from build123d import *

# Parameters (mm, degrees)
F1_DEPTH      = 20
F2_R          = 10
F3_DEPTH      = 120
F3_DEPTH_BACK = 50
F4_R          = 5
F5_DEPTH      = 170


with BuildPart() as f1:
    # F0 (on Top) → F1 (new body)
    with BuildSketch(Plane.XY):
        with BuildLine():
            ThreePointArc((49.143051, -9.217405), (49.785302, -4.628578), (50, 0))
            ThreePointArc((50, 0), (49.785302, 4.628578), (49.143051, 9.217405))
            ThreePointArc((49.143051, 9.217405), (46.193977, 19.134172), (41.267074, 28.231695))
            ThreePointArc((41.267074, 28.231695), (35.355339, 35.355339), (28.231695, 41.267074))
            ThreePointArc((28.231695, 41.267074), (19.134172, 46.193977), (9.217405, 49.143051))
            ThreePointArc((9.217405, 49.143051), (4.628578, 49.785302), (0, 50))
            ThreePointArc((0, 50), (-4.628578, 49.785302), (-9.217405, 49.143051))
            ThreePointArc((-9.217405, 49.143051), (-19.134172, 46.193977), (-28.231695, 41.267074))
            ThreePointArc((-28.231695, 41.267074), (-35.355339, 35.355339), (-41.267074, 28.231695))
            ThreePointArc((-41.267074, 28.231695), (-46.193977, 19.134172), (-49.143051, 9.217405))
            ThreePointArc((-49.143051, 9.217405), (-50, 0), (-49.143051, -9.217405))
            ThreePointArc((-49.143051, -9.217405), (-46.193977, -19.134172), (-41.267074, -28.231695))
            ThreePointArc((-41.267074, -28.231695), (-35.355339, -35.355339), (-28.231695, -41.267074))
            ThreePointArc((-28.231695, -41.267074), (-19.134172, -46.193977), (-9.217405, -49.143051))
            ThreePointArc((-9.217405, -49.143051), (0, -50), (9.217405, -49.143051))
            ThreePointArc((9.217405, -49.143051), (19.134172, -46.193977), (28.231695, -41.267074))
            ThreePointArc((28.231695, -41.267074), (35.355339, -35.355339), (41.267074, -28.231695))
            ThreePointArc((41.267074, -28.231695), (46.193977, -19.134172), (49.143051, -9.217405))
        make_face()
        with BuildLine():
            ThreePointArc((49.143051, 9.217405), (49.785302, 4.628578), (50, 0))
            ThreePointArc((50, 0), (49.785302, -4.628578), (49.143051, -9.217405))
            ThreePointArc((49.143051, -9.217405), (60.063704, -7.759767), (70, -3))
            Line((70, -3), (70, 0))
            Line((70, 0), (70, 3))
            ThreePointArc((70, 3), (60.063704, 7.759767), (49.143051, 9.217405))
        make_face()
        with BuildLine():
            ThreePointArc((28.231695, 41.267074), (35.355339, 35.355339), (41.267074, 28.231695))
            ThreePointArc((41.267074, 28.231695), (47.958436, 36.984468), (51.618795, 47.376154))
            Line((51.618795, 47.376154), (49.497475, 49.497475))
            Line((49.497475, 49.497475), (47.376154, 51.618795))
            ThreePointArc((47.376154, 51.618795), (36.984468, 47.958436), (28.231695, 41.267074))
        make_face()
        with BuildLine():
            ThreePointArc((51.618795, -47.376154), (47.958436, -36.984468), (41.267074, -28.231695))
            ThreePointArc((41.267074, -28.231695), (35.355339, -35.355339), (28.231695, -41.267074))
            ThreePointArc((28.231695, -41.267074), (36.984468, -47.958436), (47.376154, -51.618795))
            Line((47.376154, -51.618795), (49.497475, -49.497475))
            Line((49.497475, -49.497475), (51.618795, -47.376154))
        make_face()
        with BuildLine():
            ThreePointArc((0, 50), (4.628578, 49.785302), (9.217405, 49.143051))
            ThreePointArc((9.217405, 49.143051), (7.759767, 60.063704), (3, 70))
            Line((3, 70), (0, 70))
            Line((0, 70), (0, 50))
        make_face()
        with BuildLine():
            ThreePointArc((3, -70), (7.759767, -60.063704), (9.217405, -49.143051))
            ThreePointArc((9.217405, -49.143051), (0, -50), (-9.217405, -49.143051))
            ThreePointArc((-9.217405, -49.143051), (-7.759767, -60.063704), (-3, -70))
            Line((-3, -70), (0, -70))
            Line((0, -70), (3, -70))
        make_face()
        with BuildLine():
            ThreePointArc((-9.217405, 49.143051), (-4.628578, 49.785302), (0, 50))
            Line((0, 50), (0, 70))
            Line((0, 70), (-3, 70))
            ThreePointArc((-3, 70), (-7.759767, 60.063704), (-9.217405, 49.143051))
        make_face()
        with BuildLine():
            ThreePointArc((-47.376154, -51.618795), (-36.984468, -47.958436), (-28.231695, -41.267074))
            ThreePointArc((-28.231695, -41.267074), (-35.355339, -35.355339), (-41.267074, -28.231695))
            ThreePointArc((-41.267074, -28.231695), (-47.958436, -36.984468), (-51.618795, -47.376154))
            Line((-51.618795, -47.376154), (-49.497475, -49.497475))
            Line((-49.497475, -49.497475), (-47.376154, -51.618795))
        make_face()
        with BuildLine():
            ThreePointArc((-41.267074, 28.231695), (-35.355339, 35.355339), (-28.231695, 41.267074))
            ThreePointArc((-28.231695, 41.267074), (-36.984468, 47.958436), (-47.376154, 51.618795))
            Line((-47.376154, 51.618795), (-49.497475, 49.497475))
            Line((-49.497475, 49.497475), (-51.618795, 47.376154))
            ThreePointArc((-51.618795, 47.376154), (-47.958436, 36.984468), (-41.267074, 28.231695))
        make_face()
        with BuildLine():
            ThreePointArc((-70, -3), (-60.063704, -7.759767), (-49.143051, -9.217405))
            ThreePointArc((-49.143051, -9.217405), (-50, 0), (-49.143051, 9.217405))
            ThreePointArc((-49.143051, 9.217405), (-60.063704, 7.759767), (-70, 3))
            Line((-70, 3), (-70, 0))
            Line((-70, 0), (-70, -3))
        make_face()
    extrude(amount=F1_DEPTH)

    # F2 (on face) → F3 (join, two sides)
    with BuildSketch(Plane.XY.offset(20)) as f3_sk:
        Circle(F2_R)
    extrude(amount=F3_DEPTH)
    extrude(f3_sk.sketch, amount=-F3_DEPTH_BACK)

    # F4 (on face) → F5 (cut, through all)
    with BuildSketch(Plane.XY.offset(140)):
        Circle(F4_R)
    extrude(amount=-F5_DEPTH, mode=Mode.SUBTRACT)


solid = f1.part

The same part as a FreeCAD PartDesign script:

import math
import FreeCAD as App
import Part
import Sketcher

V = App.Vector
Q = App.Units.Quantity

doc = App.newDocument("Part")
body = doc.addObject("PartDesign::Body", "Body")

sketch1 = body.newObject("Sketcher::SketchObject", "Sketch")
sketch1.AttachmentSupport = (doc.getObject("XY_Plane"), [""])
sketch1.MapMode = "FlatFace"
sketch1.addGeometry([
    Part.ArcOfCircle(Part.Circle(V(0.000018, 0.000007, 0), V(0, 0, 1), 49.999981), math.radians(10.623123), math.radians(34.376878)),
    Part.ArcOfCircle(Part.Circle(V(16.970569, 53.740113, 0), V(0, 0, 1), 35.227824), math.radians(-46.393914), math.radians(-10.40771)),
    Part.LineSegment(V(51.618795, 47.376154, 0), V(49.497475, 49.497475, 0)),
    Part.LineSegment(V(49.497475, 49.497475, 0), V(47.376154, 51.618795, 0)),
    Part.ArcOfCircle(Part.Circle(V(53.740113, 16.970569, 0), V(0, 0, 1), 35.227824), math.radians(100.40771), math.radians(136.393914)),
    Part.ArcOfCircle(Part.Circle(V(0.000007, 0.000018, 0), V(0, 0, 1), 49.999981), math.radians(55.623122), math.radians(79.376877)),
    Part.ArcOfCircle(Part.Circle(V(-25.999995, 50.000002, 0), V(0, 0, 1), 35.227825), math.radians(-1.393913), math.radians(34.59229)),
    Part.LineSegment(V(3, 70, 0), V(-3, 70, 0)),
    Part.ArcOfCircle(Part.Circle(V(25.999995, 50.000002, 0), V(0, 0, 1), 35.227825), math.radians(145.40771), math.radians(181.393913)),
    Part.ArcOfCircle(Part.Circle(V(-0.000007, 0.000018, 0), V(0, 0, 1), 49.999981), math.radians(100.623123), math.radians(124.376878)),
    Part.ArcOfCircle(Part.Circle(V(-53.740113, 16.970569, 0), V(0, 0, 1), 35.227824), math.radians(43.606086), math.radians(79.59229)),
    Part.LineSegment(V(-47.376154, 51.618795, 0), V(-49.497475, 49.497475, 0)),
    Part.LineSegment(V(-49.497475, 49.497475, 0), V(-51.618795, 47.376154, 0)),
    Part.ArcOfCircle(Part.Circle(V(-16.970569, 53.740113, 0), V(0, 0, 1), 35.227824), math.radians(-169.59229), math.radians(-133.606086)),
    Part.ArcOfCircle(Part.Circle(V(-0.000018, 0.000007, 0), V(0, 0, 1), 49.999981), math.radians(145.623122), math.radians(169.376877)),
    Part.ArcOfCircle(Part.Circle(V(-50.000002, -25.999995, 0), V(0, 0, 1), 35.227825), math.radians(88.606087), math.radians(124.59229)),
    Part.LineSegment(V(-70, 3, 0), V(-70, -3, 0)),
    Part.ArcOfCircle(Part.Circle(V(-50.000002, 25.999995, 0), V(0, 0, 1), 35.227825), math.radians(-124.59229), math.radians(-88.606087)),
    Part.ArcOfCircle(Part.Circle(V(-0.000018, -0.000007, 0), V(0, 0, 1), 49.999981), math.radians(-169.376877), math.radians(-145.623122)),
    Part.ArcOfCircle(Part.Circle(V(-16.970569, -53.740113, 0), V(0, 0, 1), 35.227824), math.radians(133.606086), math.radians(169.59229)),
    Part.LineSegment(V(-51.618795, -47.376154, 0), V(-49.497475, -49.497475, 0)),
    Part.LineSegment(V(-49.497475, -49.497475, 0), V(-47.376154, -51.618795, 0)),
    Part.ArcOfCircle(Part.Circle(V(-53.740113, -16.970569, 0), V(0, 0, 1), 35.227824), math.radians(-79.59229), math.radians(-43.606086)),
    Part.ArcOfCircle(Part.Circle(V(-0.000007, -0.000018, 0), V(0, 0, 1), 49.999981), math.radians(-124.376878), math.radians(-100.623123)),
    Part.ArcOfCircle(Part.Circle(V(25.999995, -50.000002, 0), V(0, 0, 1), 35.227825), math.radians(178.606087), math.radians(214.59229)),
    Part.LineSegment(V(-3, -70, 0), V(3, -70, 0)),
    Part.ArcOfCircle(Part.Circle(V(-25.999995, -50.000002, 0), V(0, 0, 1), 35.227825), math.radians(-34.59229), math.radians(1.393913)),
    Part.ArcOfCircle(Part.Circle(V(0.000007, -0.000018, 0), V(0, 0, 1), 49.999981), math.radians(-79.376877), math.radians(-55.623122)),
    Part.ArcOfCircle(Part.Circle(V(53.740113, -16.970569, 0), V(0, 0, 1), 35.227824), math.radians(-136.393914), math.radians(-100.40771)),
    Part.LineSegment(V(47.376154, -51.618795, 0), V(49.497475, -49.497475, 0)),
    Part.LineSegment(V(49.497475, -49.497475, 0), V(51.618795, -47.376154, 0)),
    Part.ArcOfCircle(Part.Circle(V(16.970569, -53.740113, 0), V(0, 0, 1), 35.227824), math.radians(10.40771), math.radians(46.393914)),
    Part.ArcOfCircle(Part.Circle(V(0.000018, -0.000007, 0), V(0, 0, 1), 49.999981), math.radians(-34.376878), math.radians(-10.623123)),
    Part.ArcOfCircle(Part.Circle(V(50.000002, 25.999995, 0), V(0, 0, 1), 35.227825), math.radians(-91.393913), math.radians(-55.40771)),
    Part.LineSegment(V(70, -3, 0), V(70, 3, 0)),
    Part.ArcOfCircle(Part.Circle(V(50.000002, -25.999995, 0), V(0, 0, 1), 35.227825), math.radians(55.40771), math.radians(91.393913)),
], False)
sketch1.addConstraint([
    Sketcher.Constraint("Coincident", 0, 2, 1, 1),
    Sketcher.Constraint("Coincident", 1, 2, 2, 1),
    Sketcher.Constraint("Coincident", 2, 2, 3, 1),
    Sketcher.Constraint("Coincident", 3, 2, 4, 1),
    Sketcher.Constraint("Coincident", 4, 2, 5, 1),
    Sketcher.Constraint("Coincident", 5, 2, 6, 1),
    Sketcher.Constraint("Coincident", 6, 2, 7, 1),
    Sketcher.Constraint("Coincident", 7, 2, 8, 1),
    Sketcher.Constraint("Coincident", 8, 2, 9, 1),
    Sketcher.Constraint("Coincident", 9, 2, 10, 1),
    Sketcher.Constraint("Coincident", 10, 2, 11, 1),
    Sketcher.Constraint("Coincident", 11, 2, 12, 1),
    Sketcher.Constraint("Coincident", 12, 2, 13, 1),
    Sketcher.Constraint("Coincident", 13, 2, 14, 1),
    Sketcher.Constraint("Coincident", 14, 2, 15, 1),
    Sketcher.Constraint("Coincident", 15, 2, 16, 1),
    Sketcher.Constraint("Coincident", 16, 2, 17, 1),
    Sketcher.Constraint("Coincident", 17, 2, 18, 1),
    Sketcher.Constraint("Coincident", 18, 2, 19, 1),
    Sketcher.Constraint("Coincident", 19, 2, 20, 1),
    Sketcher.Constraint("Coincident", 20, 2, 21, 1),
    Sketcher.Constraint("Coincident", 21, 2, 22, 1),
    Sketcher.Constraint("Coincident", 22, 2, 23, 1),
    Sketcher.Constraint("Coincident", 23, 2, 24, 1),
    Sketcher.Constraint("Coincident", 24, 2, 25, 1),
    Sketcher.Constraint("Coincident", 25, 2, 26, 1),
    Sketcher.Constraint("Coincident", 26, 2, 27, 1),
    Sketcher.Constraint("Coincident", 27, 2, 28, 1),
    Sketcher.Constraint("Coincident", 28, 2, 29, 1),
    Sketcher.Constraint("Coincident", 29, 2, 30, 1),
    Sketcher.Constraint("Coincident", 30, 2, 31, 1),
    Sketcher.Constraint("Coincident", 31, 2, 32, 1),
    Sketcher.Constraint("Coincident", 32, 2, 33, 1),
    Sketcher.Constraint("Coincident", 33, 2, 34, 1),
    Sketcher.Constraint("Coincident", 34, 2, 35, 1),
    Sketcher.Constraint("Coincident", 35, 2, 0, 1),
    Sketcher.Constraint("Horizontal", 7),
    Sketcher.Constraint("Vertical", 16),
    Sketcher.Constraint("Horizontal", 25),
    Sketcher.Constraint("Vertical", 34),
    Sketcher.Constraint("Equal", 1, 4),
    Sketcher.Constraint("Equal", 0, 5),
    Sketcher.Constraint("Equal", 4, 6),
    Sketcher.Constraint("Equal", 6, 8),
    Sketcher.Constraint("Equal", 5, 9),
    Sketcher.Constraint("Equal", 8, 10),
    Sketcher.Constraint("Equal", 10, 13),
    Sketcher.Constraint("Equal", 9, 14),
    Sketcher.Constraint("Equal", 13, 15),
    Sketcher.Constraint("Equal", 15, 17),
    Sketcher.Constraint("Equal", 14, 18),
    Sketcher.Constraint("Equal", 17, 19),
    Sketcher.Constraint("Equal", 19, 22),
    Sketcher.Constraint("Equal", 18, 23),
    Sketcher.Constraint("Equal", 22, 24),
    Sketcher.Constraint("Equal", 24, 26),
    Sketcher.Constraint("Equal", 23, 27),
    Sketcher.Constraint("Equal", 26, 28),
    Sketcher.Constraint("Equal", 28, 31),
    Sketcher.Constraint("Equal", 27, 32),
    Sketcher.Constraint("Equal", 31, 33),
    Sketcher.Constraint("Equal", 33, 35),
    Sketcher.Constraint("Symmetric", 0, 3, 18, 3, -1, 1),
    Sketcher.Constraint("Symmetric", 1, 3, 19, 3, -1, 1),
    Sketcher.Constraint("Symmetric", 4, 3, 22, 3, -1, 1),
    Sketcher.Constraint("Symmetric", 5, 3, 23, 3, -1, 1),
    Sketcher.Constraint("Symmetric", 6, 3, 24, 3, -1, 1),
    Sketcher.Constraint("Symmetric", 8, 3, 26, 3, -1, 1),
    Sketcher.Constraint("Symmetric", 9, 3, 27, 3, -1, 1),
    Sketcher.Constraint("Symmetric", 10, 3, 28, 3, -1, 1),
    Sketcher.Constraint("Symmetric", 13, 3, 31, 3, -1, 1),
    Sketcher.Constraint("Symmetric", 14, 3, 32, 3, -1, 1),
    Sketcher.Constraint("Symmetric", 15, 3, 33, 3, -1, 1),
    Sketcher.Constraint("Symmetric", 17, 3, 35, 3, -1, 1),
    Sketcher.Constraint("Symmetric", 2, 2, 20, 2, -1, 1),
    Sketcher.Constraint("Symmetric", 11, 2, 29, 2, -1, 1),
    Sketcher.Constraint("Symmetric", 6, 3, 8, 3, -2),
    Sketcher.Constraint("Symmetric", 5, 3, 9, 3, -2),
    Sketcher.Constraint("Symmetric", 4, 3, 10, 3, -2),
    Sketcher.Constraint("Symmetric", 1, 3, 13, 3, -2),
    Sketcher.Constraint("Symmetric", 0, 3, 14, 3, -2),
    Sketcher.Constraint("Symmetric", 17, 3, 33, 3, -2),
    Sketcher.Constraint("Symmetric", 2, 2, 11, 2, -2),
    Sketcher.Constraint("Parallel", 2, 3),
    Sketcher.Constraint("Perpendicular", 3, 11),
    Sketcher.Constraint("Parallel", 11, 12),
    Sketcher.Constraint("Perpendicular", 12, 20),
    Sketcher.Constraint("Parallel", 20, 21),
    Sketcher.Constraint("Perpendicular", 21, 29),
    Sketcher.Constraint("Parallel", 29, 30),
    Sketcher.Constraint("Horizontal", 3, 2, 10, 2),
    Sketcher.Constraint("Horizontal", 16, 2, 33, 2),
    Sketcher.Constraint("Vertical", 7, 2, 24, 2),
    Sketcher.Constraint("Equal", 25, 16),
    Sketcher.Constraint("Equal", 2, 3),
    Sketcher.Constraint("DistanceX", 7, 2, 7, 1, Q("6 mm")),
    Sketcher.Constraint("Distance", 2, Q("3 mm")),
    Sketcher.Constraint("DistanceY", -1, 1, 6, 3, Q("50.000002 mm")),
    Sketcher.Constraint("DistanceX", 15, 3, -1, 1, Q("50.000002 mm")),
    Sketcher.Constraint("DistanceY", -1, 1, 6, 2, Q("70 mm")),
    Sketcher.Constraint("DistanceX", 15, 2, -1, 1, Q("70 mm")),
    Sketcher.Constraint("Radius", 0, Q("49.999981 mm")),
    Sketcher.Constraint("Radius", 1, Q("35.227824 mm")),
    Sketcher.Constraint("DistanceY", 33, 3, 0, 2, Q("2.2317 mm")),
    Sketcher.Constraint("DistanceX", 8, 3, 1, 2, Q("25.6188 mm")),
    Sketcher.Constraint("DistanceX", 0, 2, 2, 2, Q("8.230401 mm")),
    Sketcher.Constraint("DistanceY", 0, 2, 3, 2, Q("23.3871 mm")),
    Sketcher.Constraint("DistanceX", 8, 3, 4, 2, Q("2.2317 mm")),
    Sketcher.Constraint("DistanceY", 4, 2, 2, 2, Q("8.230401 mm")),
    Sketcher.Constraint("DistanceY", -1, 1, 5, 2, Q("49.143051 mm")),
    Sketcher.Constraint("DistanceX", 14, 2, -1, 1, Q("49.143051 mm")),
])
pad1 = body.newObject("PartDesign::Pad", "Pad")
pad1.Profile = sketch1
pad1.Length = 20

sketch2 = body.newObject("Sketcher::SketchObject", "Sketch001")
sketch2.AttachmentSupport = (doc.getObject("XY_Plane"), [""])
sketch2.MapMode = "FlatFace"
sketch2.AttachmentOffset = App.Placement(V(0, 0, 20), App.Rotation())
sketch2.addGeometry(Part.Circle(V(0, 0, 0), V(0, 0, 1), 10), False)
sketch2.addConstraint([
    Sketcher.Constraint("Coincident", 0, 3, -1, 1),
    Sketcher.Constraint("Diameter", 0, Q("20 mm")),
])
pad2 = body.newObject("PartDesign::Pad", "Pad001")
pad2.Profile = sketch2
pad2.Type = "TwoLengths"
pad2.Length = 120
pad2.Length2 = 50

sketch3 = body.newObject("Sketcher::SketchObject", "Sketch002")
sketch3.AttachmentSupport = (doc.getObject("XY_Plane"), [""])
sketch3.MapMode = "FlatFace"
sketch3.AttachmentOffset = App.Placement(V(0, 0, 140), App.Rotation())
sketch3.addGeometry(Part.Circle(V(0, 0, 0), V(0, 0, 1), 5), False)
sketch3.addConstraint([
    Sketcher.Constraint("Coincident", 0, 3, -1, 1),
    Sketcher.Constraint("Diameter", 0, Q("10 mm")),
])
pocket1 = body.newObject("PartDesign::Pocket", "Pocket")
pocket1.Profile = sketch3
pocket1.Type = "ThroughAll"

doc.recompute()
